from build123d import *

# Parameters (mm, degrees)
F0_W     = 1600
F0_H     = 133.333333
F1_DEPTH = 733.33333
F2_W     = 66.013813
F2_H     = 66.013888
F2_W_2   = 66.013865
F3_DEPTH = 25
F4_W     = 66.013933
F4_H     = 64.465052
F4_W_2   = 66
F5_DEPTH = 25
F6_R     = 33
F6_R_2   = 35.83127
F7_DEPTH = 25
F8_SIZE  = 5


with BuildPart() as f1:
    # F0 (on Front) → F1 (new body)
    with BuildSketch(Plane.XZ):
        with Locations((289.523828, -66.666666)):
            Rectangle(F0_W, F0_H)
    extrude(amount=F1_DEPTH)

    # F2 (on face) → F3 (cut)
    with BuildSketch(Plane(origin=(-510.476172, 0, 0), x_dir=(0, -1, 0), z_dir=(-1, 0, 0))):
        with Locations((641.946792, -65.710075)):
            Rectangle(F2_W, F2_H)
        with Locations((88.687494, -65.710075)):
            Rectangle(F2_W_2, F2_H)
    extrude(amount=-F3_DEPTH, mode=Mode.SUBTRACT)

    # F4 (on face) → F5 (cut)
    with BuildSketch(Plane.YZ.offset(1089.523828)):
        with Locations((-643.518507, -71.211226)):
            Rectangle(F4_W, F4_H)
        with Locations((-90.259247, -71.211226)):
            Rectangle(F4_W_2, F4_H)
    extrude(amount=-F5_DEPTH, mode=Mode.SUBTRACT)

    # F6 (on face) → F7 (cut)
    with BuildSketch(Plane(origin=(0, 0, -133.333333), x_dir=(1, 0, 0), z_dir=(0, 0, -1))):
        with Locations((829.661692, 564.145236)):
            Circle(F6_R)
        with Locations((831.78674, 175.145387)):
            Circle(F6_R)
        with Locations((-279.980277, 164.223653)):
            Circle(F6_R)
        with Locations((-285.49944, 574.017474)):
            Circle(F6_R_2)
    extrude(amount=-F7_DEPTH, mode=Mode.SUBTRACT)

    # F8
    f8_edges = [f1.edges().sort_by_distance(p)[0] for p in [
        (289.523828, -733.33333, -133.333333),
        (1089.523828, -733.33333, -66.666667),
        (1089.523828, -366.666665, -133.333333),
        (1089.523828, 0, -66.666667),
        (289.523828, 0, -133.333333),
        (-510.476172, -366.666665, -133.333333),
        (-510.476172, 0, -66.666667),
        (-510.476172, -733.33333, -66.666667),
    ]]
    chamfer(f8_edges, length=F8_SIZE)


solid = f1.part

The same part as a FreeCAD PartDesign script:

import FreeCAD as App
import Part
import Sketcher

V = App.Vector
Q = App.Units.Quantity


def edges_at(feature, points):
    """Names of the edges that pass closest to the given points."""
    edges = feature.Shape.Edges
    near = lambda p: min(range(len(edges)), key=lambda i: edges[i].distToShape(Part.Vertex(*p))[0])
    return sorted({f"Edge{near(p) + 1}" for p in points})


def add_polygon(sketch, points):
    """Adds a closed chain of lines whose ends are joined by coincident constraints."""
    first, n = sketch.GeometryCount, len(points)
    for a, b in zip(points, points[1:] + points[:1]):
        sketch.addGeometry(Part.LineSegment(App.Vector(*a, 0), App.Vector(*b, 0)), False)
    for i in range(n):
        sketch.addConstraint(Sketcher.Constraint("Coincident", first + i, 2, first + (i + 1) % n, 1))

doc = App.newDocument("Part")
body = doc.addObject("PartDesign::Body", "Body")

# Sketch on XZ plane
sketch1 = doc.addObject("Sketcher::SketchObject", "Sketch")
body.addObject(sketch1)
sketch1.AttachmentSupport = (doc.XZ_Plane, [""])
sketch1.MapMode = "FlatFace"
add_polygon(sketch1, [(-510, 0), (-510, -133), (1090, -133), (1090, 0)])  # lines 0-3
sketch1.addConstraint(Sketcher.Constraint("Vertical", 0))
sketch1.addConstraint(Sketcher.Constraint("Horizontal", 1))
sketch1.addConstraint(Sketcher.Constraint("Vertical", 2))
sketch1.addConstraint(Sketcher.Constraint("Horizontal", 3))
sketch1.addConstraint(Sketcher.Constraint("PointOnObject", 2, 2, -1))
sketch1.addConstraint(Sketcher.Constraint("DistanceX", 1, 1, 1, 2, Q("1600 mm")))
sketch1.addConstraint(Sketcher.Constraint("DistanceY", 0, 2, 0, 1, Q("133.333333 mm")))
sketch1.addConstraint(Sketcher.Constraint("DistanceX", 0, 2, -1, 1, Q("510.476172 mm")))
pad1 = doc.addObject("PartDesign::Pad", "Pad")
body.addObject(pad1)
pad1.Profile = sketch1
pad1.Length = 733.33333

# Sketch on YZ plane
sketch2 = doc.addObject("Sketcher::SketchObject", "Sketch001")
body.addObject(sketch2)
sketch2.AttachmentSupport = (doc.YZ_Plane, [""])
sketch2.MapMode = "FlatFace"
sketch2.AttachmentOffset = App.Placement(V(0, 0, -510.476172), App.Rotation())
add_polygon(sketch2, [(-609, -33), (-609, -99), (-675, -99), (-675, -33)])  # lines 0-3
add_polygon(sketch2, [(-56, -33), (-56, -99), (-122, -99), (-122, -33)])  # lines 4-7
sketch2.addConstraint(Sketcher.Constraint("Vertical", 0))
sketch2.addConstraint(Sketcher.Constraint("Horizontal", 1))
sketch2.addConstraint(Sketcher.Constraint("Vertical", 2))
sketch2.addConstraint(Sketcher.Constraint("Horizontal", 3))
sketch2.addConstraint(Sketcher.Constraint("Vertical", 4))
sketch2.addConstraint(Sketcher.Constraint("Horizontal", 5))
sketch2.addConstraint(Sketcher.Constraint("Vertical", 6))
sketch2.addConstraint(Sketcher.Constraint("Horizontal", 7))
sketch2.addConstraint(Sketcher.Constraint("Horizontal", 1, 2, 4, 2))
sketch2.addConstraint(Sketcher.Constraint("Horizontal", 3, 2, 6, 2))
sketch2.addConstraint(Sketcher.Constraint("DistanceX", 1, 2, -1, 1, Q("674.953698 mm")))
sketch2.addConstraint(Sketcher.Constraint("DistanceX", 1, 2, 1, 1, Q("66.013813 mm")))
sketch2.addConstraint(Sketcher.Constraint("DistanceX", 5, 2, 5, 1, Q("66.013865 mm")))
sketch2.addConstraint(Sketcher.Constraint("DistanceY", 0, 2, 0, 1, Q("66.013888 mm")))
sketch2.addConstraint(Sketcher.Constraint("DistanceY", 0, 2, -1, 1, Q("98.717019 mm")))
sketch2.addConstraint(Sketcher.Constraint("DistanceX", 4, 2, -1, 1, Q("55.680562 mm")))
pocket1 = doc.addObject("PartDesign::Pocket", "Pocket")
body.addObject(pocket1)
pocket1.Profile = sketch2
pocket1.Length = 25
pocket1.Reversed = True

# Sketch on YZ plane
sketch3 = doc.addObject("Sketcher::SketchObject", "Sketch002")
body.addObject(sketch3)
sketch3.AttachmentSupport = (doc.YZ_Plane, [""])
sketch3.MapMode = "FlatFace"
sketch3.AttachmentOffset = App.Placement(V(0, 0, 1089.523828), App.Rotation())
add_polygon(sketch3, [(-677, -39), (-677, -103), (-611, -103), (-611, -39)])  # lines 0-3
add_polygon(sketch3, [(-123, -39), (-123, -103), (-57, -103), (-57, -39)])  # lines 4-7
sketch3.addConstraint(Sketcher.Constraint("Vertical", 0))
sketch3.addConstraint(Sketcher.Constraint("Horizontal", 1))
sketch3.addConstraint(Sketcher.Constraint("Vertical", 2))
sketch3.addConstraint(Sketcher.Constraint("Horizontal", 3))
sketch3.addConstraint(Sketcher.Constraint("Vertical", 4))
sketch3.addConstraint(Sketcher.Constraint("Horizontal", 5))
sketch3.addConstraint(Sketcher.Constraint("Vertical", 6))
sketch3.addConstraint(Sketcher.Constraint("Horizontal", 7))
sketch3.addConstraint(Sketcher.Constraint("Horizontal", 1, 2, 4, 2))
sketch3.addConstraint(Sketcher.Constraint("Horizontal", 3, 2, 6, 2))
sketch3.addConstraint(Sketcher.Constraint("DistanceX", 5, 1, 5, 2, Q("66 mm")))
sketch3.addConstraint(Sketcher.Constraint("DistanceY", 0, 2, 0, 1, Q("64.465052 mm")))
sketch3.addConstraint(Sketcher.Constraint("DistanceY", 2, 2, -1, 1, Q("38.9787 mm")))
sketch3.addConstraint(Sketcher.Constraint("DistanceX", 1, 1, 1, 2, Q("66.013933 mm")))
sketch3.addConstraint(Sketcher.Constraint("DistanceX", 1, 2, -1, 1, Q("610.511541 mm")))
sketch3.addConstraint(Sketcher.Constraint("DistanceX", 4, 2, -1, 1, Q("123.259247 mm")))
pocket2 = doc.addObject("PartDesign::Pocket", "Pocket001")
body.addObject(pocket2)
pocket2.Profile = sketch3
pocket2.Length = 25

# Sketch on XY plane
sketch4 = doc.addObject("Sketcher::SketchObject", "Sketch003")
body.addObject(sketch4)
sketch4.AttachmentSupport = (doc.XY_Plane, [""])
sketch4.MapMode = "FlatFace"
sketch4.AttachmentOffset = App.Placement(V(0, 0, -133.333333), App.Rotation())
sketch4.addGeometry(Part.Circle(V(830, -564, 0), V(0, 0, 1), 33), False)
sketch4.addGeometry(Part.Circle(V(832, -175, 0), V(0, 0, 1), 33), False)
sketch4.addGeometry(Part.Circle(V(-280, -164, 0), V(0, 0, 1), 33), False)
sketch4.addGeometry(Part.Circle(V(-285, -574, 0), V(0, 0, 1), 36), False)
sketch4.addConstraint(Sketcher.Constraint("Equal", 0, 1))
sketch4.addConstraint(Sketcher.Constraint("Equal", 1, 2))
sketch4.addConstraint(Sketcher.Constraint("Diameter", 0, Q("66 mm")))
sketch4.addConstraint(Sketcher.Constraint("Diameter", 3, Q("71.66254 mm")))
sketch4.addConstraint(Sketcher.Constraint("DistanceX", -1, 1, 0, 3, Q("829.661692 mm")))
sketch4.addConstraint(Sketcher.Constraint("DistanceX", -1, 1, 1, 3, Q("831.78674 mm")))
sketch4.addConstraint(Sketcher.Constraint("DistanceX", 3, 3, -1, 1, Q("285.49944 mm")))
sketch4.addConstraint(Sketcher.Constraint("DistanceY", 0, 3, 1, 3, Q("388.999849 mm")))
sketch4.addConstraint(Sketcher.Constraint("DistanceX", 2, 3, 0, 3, Q("1109.641969 mm")))
sketch4.addConstraint(Sketcher.Constraint("DistanceY", 3, 3, 2, 3, Q("409.793821 mm")))
sketch4.addConstraint(Sketcher.Constraint("DistanceY", 3, 3, 0, 3, Q("9.872238 mm")))
sketch4.addConstraint(Sketcher.Constraint("DistanceY", 0, 3, -1, 1, Q("564.145236 mm")))
pocket3 = doc.addObject("PartDesign::Pocket", "Pocket002")
body.addObject(pocket3)
pocket3.Profile = sketch4
pocket3.Length = 25
pocket3.Reversed = True
doc.recompute()

chamfer = doc.addObject("PartDesign::Chamfer", "Chamfer")
body.addObject(chamfer)
chamfer.Base = (pocket3, edges_at(pocket3, [
    (289.524, -733.333, -133.333),
    (1089.524, -733.333, -66.667),
    (1089.524, -366.667, -133.333),
    (1089.524, 0, -66.667),
    (289.524, 0, -133.333),
    (-510.476, -366.667, -133.333),
    (-510.476, 0, -66.667),
    (-510.476, -733.333, -66.667),
]))
chamfer.Size = 5

doc.recompute()
